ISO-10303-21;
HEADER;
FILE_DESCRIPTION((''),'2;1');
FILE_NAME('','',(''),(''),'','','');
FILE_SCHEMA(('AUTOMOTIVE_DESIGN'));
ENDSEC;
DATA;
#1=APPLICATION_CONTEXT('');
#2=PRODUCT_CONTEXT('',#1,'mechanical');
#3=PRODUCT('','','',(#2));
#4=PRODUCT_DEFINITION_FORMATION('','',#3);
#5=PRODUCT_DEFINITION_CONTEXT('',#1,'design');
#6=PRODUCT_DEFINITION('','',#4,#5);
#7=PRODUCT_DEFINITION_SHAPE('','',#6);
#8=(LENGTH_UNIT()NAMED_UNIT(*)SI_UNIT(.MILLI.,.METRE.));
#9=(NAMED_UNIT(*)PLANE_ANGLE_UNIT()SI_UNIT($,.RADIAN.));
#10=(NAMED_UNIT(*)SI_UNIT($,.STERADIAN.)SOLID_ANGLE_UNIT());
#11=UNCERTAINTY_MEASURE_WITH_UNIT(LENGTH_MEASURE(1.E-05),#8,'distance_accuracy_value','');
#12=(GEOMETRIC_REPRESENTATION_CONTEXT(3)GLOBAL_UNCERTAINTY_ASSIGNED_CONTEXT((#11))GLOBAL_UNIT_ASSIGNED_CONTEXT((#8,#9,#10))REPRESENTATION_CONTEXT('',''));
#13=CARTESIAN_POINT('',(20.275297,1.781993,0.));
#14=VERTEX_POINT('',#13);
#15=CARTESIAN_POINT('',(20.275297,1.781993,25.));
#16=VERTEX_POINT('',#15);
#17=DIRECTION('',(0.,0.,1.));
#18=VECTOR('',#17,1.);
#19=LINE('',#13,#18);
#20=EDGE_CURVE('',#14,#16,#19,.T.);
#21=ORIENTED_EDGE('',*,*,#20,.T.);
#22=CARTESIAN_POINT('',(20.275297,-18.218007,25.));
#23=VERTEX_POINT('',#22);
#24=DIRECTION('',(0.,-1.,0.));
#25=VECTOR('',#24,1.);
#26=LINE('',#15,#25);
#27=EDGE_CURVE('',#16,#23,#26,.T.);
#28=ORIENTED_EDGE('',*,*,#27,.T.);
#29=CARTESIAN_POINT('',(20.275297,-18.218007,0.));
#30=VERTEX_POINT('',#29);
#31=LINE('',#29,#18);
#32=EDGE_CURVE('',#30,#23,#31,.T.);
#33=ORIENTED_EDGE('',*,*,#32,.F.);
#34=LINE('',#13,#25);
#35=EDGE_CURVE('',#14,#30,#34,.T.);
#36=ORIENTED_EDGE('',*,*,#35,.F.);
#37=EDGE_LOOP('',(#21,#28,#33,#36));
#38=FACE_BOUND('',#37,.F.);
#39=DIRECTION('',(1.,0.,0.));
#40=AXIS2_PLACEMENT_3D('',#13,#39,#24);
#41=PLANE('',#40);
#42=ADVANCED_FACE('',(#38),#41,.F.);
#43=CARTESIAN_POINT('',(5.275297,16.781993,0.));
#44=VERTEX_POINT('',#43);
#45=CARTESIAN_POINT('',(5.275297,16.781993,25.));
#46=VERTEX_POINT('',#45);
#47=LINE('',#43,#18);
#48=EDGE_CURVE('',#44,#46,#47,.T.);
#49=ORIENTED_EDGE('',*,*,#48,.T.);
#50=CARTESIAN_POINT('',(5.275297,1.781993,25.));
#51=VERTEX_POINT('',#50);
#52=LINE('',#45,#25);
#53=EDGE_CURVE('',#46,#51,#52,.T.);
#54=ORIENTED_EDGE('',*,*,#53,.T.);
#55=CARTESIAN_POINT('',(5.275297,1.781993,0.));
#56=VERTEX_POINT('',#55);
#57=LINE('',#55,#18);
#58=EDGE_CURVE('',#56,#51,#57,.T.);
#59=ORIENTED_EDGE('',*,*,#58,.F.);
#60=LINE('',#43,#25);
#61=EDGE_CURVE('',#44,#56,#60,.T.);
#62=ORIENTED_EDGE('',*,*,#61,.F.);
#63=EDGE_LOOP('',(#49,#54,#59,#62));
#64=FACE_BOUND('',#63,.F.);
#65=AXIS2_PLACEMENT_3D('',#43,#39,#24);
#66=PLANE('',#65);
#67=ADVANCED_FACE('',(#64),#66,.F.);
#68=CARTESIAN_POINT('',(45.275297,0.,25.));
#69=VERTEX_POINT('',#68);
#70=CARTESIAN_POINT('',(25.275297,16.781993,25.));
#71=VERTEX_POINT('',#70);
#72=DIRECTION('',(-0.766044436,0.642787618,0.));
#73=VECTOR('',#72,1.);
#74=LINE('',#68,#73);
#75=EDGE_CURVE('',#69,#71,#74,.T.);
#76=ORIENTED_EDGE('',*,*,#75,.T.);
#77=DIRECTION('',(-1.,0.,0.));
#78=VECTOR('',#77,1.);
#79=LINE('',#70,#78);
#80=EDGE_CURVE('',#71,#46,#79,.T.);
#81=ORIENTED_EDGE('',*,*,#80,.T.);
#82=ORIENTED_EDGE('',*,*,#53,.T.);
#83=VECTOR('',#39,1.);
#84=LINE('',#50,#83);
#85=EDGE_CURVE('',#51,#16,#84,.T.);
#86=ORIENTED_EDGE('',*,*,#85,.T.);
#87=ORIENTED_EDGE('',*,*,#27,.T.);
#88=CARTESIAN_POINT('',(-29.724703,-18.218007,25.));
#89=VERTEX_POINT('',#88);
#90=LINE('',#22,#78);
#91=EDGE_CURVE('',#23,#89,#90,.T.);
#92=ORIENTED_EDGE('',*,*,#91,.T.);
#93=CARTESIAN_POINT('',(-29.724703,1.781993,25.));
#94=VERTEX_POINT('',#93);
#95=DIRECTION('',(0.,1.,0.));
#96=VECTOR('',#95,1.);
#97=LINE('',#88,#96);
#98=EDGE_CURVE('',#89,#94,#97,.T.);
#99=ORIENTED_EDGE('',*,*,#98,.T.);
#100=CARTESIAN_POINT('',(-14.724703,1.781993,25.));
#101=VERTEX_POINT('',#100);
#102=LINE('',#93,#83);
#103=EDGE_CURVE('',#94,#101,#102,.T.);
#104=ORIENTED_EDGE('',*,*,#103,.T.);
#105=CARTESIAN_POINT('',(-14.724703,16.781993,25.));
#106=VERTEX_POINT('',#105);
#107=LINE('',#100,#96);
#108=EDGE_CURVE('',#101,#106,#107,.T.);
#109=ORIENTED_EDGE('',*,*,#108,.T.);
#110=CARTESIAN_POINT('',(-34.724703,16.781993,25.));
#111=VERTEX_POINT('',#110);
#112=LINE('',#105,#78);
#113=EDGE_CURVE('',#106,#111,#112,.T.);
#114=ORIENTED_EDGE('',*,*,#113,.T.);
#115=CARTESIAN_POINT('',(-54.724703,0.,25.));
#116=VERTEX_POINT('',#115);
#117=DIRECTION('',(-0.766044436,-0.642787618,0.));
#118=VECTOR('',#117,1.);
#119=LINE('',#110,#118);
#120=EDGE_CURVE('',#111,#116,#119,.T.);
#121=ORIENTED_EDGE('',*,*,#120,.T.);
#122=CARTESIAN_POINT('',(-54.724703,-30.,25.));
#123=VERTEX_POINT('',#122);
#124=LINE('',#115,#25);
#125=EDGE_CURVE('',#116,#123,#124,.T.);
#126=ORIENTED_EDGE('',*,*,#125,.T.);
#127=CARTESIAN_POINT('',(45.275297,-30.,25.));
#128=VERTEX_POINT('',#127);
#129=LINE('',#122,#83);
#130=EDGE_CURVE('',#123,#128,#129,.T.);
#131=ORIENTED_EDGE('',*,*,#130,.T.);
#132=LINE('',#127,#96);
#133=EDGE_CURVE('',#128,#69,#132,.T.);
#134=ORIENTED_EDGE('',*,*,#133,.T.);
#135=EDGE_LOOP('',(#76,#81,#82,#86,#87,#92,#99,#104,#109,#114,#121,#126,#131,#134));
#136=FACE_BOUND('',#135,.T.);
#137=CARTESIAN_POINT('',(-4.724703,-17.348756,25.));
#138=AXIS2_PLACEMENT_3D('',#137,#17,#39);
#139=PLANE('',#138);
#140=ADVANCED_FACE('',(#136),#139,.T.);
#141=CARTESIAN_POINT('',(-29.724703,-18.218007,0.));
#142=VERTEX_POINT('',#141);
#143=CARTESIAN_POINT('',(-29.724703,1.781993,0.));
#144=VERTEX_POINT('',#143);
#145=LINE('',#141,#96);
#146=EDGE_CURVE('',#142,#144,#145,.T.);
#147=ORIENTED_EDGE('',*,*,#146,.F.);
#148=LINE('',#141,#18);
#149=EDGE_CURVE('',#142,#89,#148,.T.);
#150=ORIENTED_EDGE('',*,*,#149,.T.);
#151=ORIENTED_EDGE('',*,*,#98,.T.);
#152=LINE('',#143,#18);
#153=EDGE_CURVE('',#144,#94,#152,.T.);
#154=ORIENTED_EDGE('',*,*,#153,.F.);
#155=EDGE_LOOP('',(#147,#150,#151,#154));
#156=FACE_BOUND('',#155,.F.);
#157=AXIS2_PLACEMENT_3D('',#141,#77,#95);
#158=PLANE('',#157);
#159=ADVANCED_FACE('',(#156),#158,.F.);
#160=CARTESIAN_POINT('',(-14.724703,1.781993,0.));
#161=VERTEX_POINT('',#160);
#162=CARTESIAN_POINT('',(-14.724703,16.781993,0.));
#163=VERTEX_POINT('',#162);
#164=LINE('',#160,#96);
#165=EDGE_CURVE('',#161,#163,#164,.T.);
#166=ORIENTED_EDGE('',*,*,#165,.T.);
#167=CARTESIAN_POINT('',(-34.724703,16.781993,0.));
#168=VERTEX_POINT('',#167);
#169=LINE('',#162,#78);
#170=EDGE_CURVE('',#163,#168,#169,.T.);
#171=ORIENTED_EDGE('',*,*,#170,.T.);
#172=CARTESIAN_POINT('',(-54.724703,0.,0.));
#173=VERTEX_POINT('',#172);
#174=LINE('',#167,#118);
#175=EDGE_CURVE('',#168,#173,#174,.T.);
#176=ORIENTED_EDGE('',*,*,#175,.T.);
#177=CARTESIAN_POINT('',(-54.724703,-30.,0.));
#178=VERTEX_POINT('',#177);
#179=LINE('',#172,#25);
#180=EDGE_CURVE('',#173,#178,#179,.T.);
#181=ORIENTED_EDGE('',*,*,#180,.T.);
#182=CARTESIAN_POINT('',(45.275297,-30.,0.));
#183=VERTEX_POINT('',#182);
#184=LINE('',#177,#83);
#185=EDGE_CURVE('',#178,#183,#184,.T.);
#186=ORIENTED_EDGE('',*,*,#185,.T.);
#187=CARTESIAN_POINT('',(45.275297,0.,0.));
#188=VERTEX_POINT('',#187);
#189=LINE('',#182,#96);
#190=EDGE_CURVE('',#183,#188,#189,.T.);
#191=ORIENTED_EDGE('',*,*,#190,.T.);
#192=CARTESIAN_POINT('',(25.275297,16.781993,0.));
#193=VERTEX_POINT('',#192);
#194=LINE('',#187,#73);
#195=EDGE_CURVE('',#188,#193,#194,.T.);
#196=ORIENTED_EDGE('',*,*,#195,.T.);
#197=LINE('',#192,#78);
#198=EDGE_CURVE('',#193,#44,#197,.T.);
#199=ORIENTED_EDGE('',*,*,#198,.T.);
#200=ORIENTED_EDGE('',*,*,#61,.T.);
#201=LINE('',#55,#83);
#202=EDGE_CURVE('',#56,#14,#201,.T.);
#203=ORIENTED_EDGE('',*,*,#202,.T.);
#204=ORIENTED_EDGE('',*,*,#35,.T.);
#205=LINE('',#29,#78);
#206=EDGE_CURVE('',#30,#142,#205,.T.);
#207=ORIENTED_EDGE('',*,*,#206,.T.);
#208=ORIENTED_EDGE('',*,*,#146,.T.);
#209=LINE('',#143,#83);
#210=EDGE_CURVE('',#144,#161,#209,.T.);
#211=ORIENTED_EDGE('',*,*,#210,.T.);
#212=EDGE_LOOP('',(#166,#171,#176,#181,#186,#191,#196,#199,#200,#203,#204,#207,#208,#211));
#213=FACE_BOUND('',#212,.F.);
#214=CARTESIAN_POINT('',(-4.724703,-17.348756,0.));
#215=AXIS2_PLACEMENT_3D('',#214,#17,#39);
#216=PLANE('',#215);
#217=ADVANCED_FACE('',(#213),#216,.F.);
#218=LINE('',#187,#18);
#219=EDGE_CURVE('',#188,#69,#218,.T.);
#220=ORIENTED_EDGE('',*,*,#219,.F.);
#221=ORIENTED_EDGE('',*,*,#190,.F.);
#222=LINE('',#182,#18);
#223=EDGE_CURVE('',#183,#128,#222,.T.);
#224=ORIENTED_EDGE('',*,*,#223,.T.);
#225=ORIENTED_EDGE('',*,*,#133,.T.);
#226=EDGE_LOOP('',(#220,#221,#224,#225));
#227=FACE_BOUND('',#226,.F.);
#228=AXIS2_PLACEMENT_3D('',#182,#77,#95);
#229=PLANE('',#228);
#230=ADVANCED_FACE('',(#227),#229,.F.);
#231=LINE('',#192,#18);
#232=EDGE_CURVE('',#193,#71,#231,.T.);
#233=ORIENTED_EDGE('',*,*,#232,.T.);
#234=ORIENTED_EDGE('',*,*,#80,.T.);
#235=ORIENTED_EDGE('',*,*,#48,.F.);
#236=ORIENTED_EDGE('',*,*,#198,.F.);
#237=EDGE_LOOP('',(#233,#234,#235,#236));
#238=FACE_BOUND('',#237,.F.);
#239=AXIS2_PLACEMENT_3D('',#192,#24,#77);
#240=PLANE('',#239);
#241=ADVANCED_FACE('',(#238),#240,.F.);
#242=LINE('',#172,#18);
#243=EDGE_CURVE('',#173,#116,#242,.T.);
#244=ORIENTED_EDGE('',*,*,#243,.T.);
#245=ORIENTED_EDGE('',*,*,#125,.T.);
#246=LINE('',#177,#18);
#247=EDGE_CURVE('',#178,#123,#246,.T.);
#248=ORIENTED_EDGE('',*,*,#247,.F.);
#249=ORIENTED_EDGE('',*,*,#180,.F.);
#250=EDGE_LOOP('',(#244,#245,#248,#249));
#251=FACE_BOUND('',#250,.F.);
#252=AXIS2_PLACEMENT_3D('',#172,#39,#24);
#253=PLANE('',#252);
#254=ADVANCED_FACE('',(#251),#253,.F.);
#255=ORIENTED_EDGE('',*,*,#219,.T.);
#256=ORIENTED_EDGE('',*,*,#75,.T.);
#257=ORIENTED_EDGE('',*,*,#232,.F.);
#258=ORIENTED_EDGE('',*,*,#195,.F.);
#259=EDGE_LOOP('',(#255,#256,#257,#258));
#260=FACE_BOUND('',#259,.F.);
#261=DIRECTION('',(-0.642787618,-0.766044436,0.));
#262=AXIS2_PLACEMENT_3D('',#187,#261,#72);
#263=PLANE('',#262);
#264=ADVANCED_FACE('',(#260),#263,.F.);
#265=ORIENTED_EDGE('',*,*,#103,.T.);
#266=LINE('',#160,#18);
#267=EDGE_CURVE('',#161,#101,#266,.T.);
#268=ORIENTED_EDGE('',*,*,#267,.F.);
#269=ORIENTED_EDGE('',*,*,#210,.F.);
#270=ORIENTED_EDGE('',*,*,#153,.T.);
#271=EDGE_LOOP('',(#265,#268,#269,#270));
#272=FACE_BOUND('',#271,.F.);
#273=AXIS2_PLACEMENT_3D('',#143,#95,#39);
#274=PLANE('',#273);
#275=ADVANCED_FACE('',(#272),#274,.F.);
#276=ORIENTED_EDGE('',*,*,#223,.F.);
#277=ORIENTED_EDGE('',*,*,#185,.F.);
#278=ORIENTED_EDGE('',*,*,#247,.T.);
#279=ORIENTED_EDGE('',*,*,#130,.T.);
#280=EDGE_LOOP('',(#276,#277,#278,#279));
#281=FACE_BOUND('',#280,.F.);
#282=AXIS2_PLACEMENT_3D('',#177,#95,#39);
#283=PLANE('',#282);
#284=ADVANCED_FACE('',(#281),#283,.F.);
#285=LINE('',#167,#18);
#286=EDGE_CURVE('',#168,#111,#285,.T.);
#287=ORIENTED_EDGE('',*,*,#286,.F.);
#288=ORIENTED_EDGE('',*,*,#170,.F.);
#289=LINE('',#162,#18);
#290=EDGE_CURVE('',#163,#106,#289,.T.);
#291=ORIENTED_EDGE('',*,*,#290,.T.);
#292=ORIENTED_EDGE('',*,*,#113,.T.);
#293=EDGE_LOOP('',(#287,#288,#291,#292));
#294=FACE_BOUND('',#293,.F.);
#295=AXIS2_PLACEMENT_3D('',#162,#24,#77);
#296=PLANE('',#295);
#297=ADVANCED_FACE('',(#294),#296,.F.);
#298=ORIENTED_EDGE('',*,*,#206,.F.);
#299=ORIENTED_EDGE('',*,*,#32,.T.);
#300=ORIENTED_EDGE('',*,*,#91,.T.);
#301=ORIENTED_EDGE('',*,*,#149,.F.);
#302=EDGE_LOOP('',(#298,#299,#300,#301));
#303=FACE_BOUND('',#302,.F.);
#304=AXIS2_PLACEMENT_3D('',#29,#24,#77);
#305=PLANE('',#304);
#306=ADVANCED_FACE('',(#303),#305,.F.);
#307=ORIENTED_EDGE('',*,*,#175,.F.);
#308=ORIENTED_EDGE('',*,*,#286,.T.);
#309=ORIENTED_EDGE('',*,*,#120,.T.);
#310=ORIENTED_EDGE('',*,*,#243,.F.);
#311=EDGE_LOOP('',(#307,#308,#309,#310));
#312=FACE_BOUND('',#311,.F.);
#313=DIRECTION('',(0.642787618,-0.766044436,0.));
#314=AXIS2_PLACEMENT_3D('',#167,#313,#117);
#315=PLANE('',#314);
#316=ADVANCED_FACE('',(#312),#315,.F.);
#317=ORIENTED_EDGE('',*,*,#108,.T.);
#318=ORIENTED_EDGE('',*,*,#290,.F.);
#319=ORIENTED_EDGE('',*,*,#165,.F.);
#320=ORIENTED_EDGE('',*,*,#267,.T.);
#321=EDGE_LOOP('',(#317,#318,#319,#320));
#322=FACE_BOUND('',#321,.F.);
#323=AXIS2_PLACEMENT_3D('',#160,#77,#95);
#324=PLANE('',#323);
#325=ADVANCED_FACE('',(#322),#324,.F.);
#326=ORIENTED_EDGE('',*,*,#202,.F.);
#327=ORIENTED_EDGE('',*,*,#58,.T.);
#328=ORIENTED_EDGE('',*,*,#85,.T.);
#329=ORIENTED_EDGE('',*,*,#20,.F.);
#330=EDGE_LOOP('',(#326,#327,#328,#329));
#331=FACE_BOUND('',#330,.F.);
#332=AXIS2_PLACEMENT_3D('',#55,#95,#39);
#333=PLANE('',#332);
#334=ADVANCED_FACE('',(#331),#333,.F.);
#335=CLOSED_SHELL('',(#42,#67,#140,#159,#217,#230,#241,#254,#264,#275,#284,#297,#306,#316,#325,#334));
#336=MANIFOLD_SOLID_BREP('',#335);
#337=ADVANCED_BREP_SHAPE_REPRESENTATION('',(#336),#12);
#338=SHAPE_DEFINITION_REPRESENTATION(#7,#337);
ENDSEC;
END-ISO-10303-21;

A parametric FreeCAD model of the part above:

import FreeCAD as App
import Part
import Sketcher
from FreeCAD import Vector
Q = App.Units.Quantity

doc = App.newDocument("Part")
body = doc.addObject("PartDesign::Body", "Body")

# Sketch on XY plane
sketch1 = body.newObject("Sketcher::SketchObject", "Sketch")
sketch1.AttachmentSupport = (doc.getObject("XY_Plane"), [""])
sketch1.MapMode = "FlatFace"
sketch1.addGeometry(Part.LineSegment(Vector(-55, 0, 0), Vector(-55, -30, 0)), False)
sketch1.addGeometry(Part.LineSegment(Vector(-55, -30, 0), Vector(45, -30, 0)), False)
sketch1.addGeometry(Part.LineSegment(Vector(45, -30, 0), Vector(45, 0, 0)), False)
sketch1.addGeometry(Part.LineSegment(Vector(45, 0, 0), Vector(25, 17, 0)), False)
sketch1.addGeometry(Part.LineSegment(Vector(25, 17, 0), Vector(5, 17, 0)), False)
sketch1.addGeometry(Part.LineSegment(Vector(5, 17, 0), Vector(5, 2, 0)), False)
sketch1.addGeometry(Part.LineSegment(Vector(5, 2, 0), Vector(20, 2, 0)), False)
sketch1.addGeometry(Part.LineSegment(Vector(20, 2, 0), Vector(20, -18, 0)), False)
sketch1.addGeometry(Part.LineSegment(Vector(20, -18, 0), Vector(-30, -18, 0)), False)
sketch1.addGeometry(Part.LineSegment(Vector(-30, -18, 0), Vector(-30, 2, 0)), False)
sketch1.addGeometry(Part.LineSegment(Vector(-30, 2, 0), Vector(-15, 2, 0)), False)
sketch1.addGeometry(Part.LineSegment(Vector(-15, 2, 0), Vector(-15, 17, 0)), False)
sketch1.addGeometry(Part.LineSegment(Vector(-15, 17, 0), Vector(-35, 17, 0)), False)
sketch1.addGeometry(Part.LineSegment(Vector(-35, 17, 0), Vector(-55, 0, 0)), False)
sketch1.addConstraint(Sketcher.Constraint("Coincident", 0, 2, 1, 1))
sketch1.addConstraint(Sketcher.Constraint("Coincident", 1, 2, 2, 1))
sketch1.addConstraint(Sketcher.Constraint("Coincident", 2, 2, 3, 1))
sketch1.addConstraint(Sketcher.Constraint("Coincident", 3, 2, 4, 1))
sketch1.addConstraint(Sketcher.Constraint("Coincident", 4, 2, 5, 1))
sketch1.addConstraint(Sketcher.Constraint("Coincident", 5, 2, 6, 1))
sketch1.addConstraint(Sketcher.Constraint("Coincident", 6, 2, 7, 1))
sketch1.addConstraint(Sketcher.Constraint("Coincident", 7, 2, 8, 1))
sketch1.addConstraint(Sketcher.Constraint("Coincident", 8, 2, 9, 1))
sketch1.addConstraint(Sketcher.Constraint("Coincident", 9, 2, 10, 1))
sketch1.addConstraint(Sketcher.Constraint("Coincident", 10, 2, 11, 1))
sketch1.addConstraint(Sketcher.Constraint("Coincident", 11, 2, 12, 1))
sketch1.addConstraint(Sketcher.Constraint("Coincident", 12, 2, 13, 1))
sketch1.addConstraint(Sketcher.Constraint("Coincident", 13, 2, 0, 1))
sketch1.addConstraint(Sketcher.Constraint("Vertical", 0))
sketch1.addConstraint(Sketcher.Constraint("Horizontal", 1))
sketch1.addConstraint(Sketcher.Constraint("Vertical", 2))
sketch1.addConstraint(Sketcher.Constraint("Horizontal", 4))
sketch1.addConstraint(Sketcher.Constraint("Vertical", 5))
sketch1.addConstraint(Sketcher.Constraint("Horizontal", 6))
sketch1.addConstraint(Sketcher.Constraint("Vertical", 7))
sketch1.addConstraint(Sketcher.Constraint("Horizontal", 8))
sketch1.addConstraint(Sketcher.Constraint("Vertical", 9))
sketch1.addConstraint(Sketcher.Constraint("Horizontal", 10))
sketch1.addConstraint(Sketcher.Constraint("Vertical", 11))
sketch1.addConstraint(Sketcher.Constraint("Horizontal", 12))
sketch1.addConstraint(Sketcher.Constraint("PointOnObject", 2, 2, -1))
sketch1.addConstraint(Sketcher.Constraint("PointOnObject", 13, 2, -1))
sketch1.addConstraint(Sketcher.Constraint("Horizontal", 6, 2, 9, 2))
sketch1.addConstraint(Sketcher.Constraint("Horizontal", 4, 2, 11, 2))
sketch1.addConstraint(Sketcher.Constraint("Equal", 6, 10))
sketch1.addConstraint(Sketcher.Constraint("Equal", 4, 12))
sketch1.addConstraint(Sketcher.Constraint("Equal", 10, 5))
sketch1.addConstraint(Sketcher.Constraint("Equal", 12, 7))
sketch1.addConstraint(Sketcher.Constraint("Equal", 3, 13))
sketch1.addConstraint(Sketcher.Constraint("DistanceX", 1, 1, 1, 2, Q("100 mm")))
sketch1.addConstraint(Sketcher.Constraint("DistanceX", 4, 2, 4, 1, Q("20 mm")))
sketch1.addConstraint(Sketcher.Constraint("DistanceX", 6, 1, 6, 2, Q("15 mm")))
sketch1.addConstraint(Sketcher.Constraint("DistanceX", 8, 2, 8, 1, Q("50 mm")))
sketch1.addConstraint(Sketcher.Constraint("DistanceY", 0, 2, 0, 1, Q("30 mm")))
sketch1.addConstraint(Sketcher.Constraint("Angle", 3, Q("139.999999 deg")))
sketch1.addConstraint(Sketcher.Constraint("DistanceX", 0, 2, -1, 1, Q("54.724703 mm")))
pad1 = body.newObject("PartDesign::Pad", "Pad")
pad1.Profile = sketch1
pad1.Length = 25

doc.recompute()
